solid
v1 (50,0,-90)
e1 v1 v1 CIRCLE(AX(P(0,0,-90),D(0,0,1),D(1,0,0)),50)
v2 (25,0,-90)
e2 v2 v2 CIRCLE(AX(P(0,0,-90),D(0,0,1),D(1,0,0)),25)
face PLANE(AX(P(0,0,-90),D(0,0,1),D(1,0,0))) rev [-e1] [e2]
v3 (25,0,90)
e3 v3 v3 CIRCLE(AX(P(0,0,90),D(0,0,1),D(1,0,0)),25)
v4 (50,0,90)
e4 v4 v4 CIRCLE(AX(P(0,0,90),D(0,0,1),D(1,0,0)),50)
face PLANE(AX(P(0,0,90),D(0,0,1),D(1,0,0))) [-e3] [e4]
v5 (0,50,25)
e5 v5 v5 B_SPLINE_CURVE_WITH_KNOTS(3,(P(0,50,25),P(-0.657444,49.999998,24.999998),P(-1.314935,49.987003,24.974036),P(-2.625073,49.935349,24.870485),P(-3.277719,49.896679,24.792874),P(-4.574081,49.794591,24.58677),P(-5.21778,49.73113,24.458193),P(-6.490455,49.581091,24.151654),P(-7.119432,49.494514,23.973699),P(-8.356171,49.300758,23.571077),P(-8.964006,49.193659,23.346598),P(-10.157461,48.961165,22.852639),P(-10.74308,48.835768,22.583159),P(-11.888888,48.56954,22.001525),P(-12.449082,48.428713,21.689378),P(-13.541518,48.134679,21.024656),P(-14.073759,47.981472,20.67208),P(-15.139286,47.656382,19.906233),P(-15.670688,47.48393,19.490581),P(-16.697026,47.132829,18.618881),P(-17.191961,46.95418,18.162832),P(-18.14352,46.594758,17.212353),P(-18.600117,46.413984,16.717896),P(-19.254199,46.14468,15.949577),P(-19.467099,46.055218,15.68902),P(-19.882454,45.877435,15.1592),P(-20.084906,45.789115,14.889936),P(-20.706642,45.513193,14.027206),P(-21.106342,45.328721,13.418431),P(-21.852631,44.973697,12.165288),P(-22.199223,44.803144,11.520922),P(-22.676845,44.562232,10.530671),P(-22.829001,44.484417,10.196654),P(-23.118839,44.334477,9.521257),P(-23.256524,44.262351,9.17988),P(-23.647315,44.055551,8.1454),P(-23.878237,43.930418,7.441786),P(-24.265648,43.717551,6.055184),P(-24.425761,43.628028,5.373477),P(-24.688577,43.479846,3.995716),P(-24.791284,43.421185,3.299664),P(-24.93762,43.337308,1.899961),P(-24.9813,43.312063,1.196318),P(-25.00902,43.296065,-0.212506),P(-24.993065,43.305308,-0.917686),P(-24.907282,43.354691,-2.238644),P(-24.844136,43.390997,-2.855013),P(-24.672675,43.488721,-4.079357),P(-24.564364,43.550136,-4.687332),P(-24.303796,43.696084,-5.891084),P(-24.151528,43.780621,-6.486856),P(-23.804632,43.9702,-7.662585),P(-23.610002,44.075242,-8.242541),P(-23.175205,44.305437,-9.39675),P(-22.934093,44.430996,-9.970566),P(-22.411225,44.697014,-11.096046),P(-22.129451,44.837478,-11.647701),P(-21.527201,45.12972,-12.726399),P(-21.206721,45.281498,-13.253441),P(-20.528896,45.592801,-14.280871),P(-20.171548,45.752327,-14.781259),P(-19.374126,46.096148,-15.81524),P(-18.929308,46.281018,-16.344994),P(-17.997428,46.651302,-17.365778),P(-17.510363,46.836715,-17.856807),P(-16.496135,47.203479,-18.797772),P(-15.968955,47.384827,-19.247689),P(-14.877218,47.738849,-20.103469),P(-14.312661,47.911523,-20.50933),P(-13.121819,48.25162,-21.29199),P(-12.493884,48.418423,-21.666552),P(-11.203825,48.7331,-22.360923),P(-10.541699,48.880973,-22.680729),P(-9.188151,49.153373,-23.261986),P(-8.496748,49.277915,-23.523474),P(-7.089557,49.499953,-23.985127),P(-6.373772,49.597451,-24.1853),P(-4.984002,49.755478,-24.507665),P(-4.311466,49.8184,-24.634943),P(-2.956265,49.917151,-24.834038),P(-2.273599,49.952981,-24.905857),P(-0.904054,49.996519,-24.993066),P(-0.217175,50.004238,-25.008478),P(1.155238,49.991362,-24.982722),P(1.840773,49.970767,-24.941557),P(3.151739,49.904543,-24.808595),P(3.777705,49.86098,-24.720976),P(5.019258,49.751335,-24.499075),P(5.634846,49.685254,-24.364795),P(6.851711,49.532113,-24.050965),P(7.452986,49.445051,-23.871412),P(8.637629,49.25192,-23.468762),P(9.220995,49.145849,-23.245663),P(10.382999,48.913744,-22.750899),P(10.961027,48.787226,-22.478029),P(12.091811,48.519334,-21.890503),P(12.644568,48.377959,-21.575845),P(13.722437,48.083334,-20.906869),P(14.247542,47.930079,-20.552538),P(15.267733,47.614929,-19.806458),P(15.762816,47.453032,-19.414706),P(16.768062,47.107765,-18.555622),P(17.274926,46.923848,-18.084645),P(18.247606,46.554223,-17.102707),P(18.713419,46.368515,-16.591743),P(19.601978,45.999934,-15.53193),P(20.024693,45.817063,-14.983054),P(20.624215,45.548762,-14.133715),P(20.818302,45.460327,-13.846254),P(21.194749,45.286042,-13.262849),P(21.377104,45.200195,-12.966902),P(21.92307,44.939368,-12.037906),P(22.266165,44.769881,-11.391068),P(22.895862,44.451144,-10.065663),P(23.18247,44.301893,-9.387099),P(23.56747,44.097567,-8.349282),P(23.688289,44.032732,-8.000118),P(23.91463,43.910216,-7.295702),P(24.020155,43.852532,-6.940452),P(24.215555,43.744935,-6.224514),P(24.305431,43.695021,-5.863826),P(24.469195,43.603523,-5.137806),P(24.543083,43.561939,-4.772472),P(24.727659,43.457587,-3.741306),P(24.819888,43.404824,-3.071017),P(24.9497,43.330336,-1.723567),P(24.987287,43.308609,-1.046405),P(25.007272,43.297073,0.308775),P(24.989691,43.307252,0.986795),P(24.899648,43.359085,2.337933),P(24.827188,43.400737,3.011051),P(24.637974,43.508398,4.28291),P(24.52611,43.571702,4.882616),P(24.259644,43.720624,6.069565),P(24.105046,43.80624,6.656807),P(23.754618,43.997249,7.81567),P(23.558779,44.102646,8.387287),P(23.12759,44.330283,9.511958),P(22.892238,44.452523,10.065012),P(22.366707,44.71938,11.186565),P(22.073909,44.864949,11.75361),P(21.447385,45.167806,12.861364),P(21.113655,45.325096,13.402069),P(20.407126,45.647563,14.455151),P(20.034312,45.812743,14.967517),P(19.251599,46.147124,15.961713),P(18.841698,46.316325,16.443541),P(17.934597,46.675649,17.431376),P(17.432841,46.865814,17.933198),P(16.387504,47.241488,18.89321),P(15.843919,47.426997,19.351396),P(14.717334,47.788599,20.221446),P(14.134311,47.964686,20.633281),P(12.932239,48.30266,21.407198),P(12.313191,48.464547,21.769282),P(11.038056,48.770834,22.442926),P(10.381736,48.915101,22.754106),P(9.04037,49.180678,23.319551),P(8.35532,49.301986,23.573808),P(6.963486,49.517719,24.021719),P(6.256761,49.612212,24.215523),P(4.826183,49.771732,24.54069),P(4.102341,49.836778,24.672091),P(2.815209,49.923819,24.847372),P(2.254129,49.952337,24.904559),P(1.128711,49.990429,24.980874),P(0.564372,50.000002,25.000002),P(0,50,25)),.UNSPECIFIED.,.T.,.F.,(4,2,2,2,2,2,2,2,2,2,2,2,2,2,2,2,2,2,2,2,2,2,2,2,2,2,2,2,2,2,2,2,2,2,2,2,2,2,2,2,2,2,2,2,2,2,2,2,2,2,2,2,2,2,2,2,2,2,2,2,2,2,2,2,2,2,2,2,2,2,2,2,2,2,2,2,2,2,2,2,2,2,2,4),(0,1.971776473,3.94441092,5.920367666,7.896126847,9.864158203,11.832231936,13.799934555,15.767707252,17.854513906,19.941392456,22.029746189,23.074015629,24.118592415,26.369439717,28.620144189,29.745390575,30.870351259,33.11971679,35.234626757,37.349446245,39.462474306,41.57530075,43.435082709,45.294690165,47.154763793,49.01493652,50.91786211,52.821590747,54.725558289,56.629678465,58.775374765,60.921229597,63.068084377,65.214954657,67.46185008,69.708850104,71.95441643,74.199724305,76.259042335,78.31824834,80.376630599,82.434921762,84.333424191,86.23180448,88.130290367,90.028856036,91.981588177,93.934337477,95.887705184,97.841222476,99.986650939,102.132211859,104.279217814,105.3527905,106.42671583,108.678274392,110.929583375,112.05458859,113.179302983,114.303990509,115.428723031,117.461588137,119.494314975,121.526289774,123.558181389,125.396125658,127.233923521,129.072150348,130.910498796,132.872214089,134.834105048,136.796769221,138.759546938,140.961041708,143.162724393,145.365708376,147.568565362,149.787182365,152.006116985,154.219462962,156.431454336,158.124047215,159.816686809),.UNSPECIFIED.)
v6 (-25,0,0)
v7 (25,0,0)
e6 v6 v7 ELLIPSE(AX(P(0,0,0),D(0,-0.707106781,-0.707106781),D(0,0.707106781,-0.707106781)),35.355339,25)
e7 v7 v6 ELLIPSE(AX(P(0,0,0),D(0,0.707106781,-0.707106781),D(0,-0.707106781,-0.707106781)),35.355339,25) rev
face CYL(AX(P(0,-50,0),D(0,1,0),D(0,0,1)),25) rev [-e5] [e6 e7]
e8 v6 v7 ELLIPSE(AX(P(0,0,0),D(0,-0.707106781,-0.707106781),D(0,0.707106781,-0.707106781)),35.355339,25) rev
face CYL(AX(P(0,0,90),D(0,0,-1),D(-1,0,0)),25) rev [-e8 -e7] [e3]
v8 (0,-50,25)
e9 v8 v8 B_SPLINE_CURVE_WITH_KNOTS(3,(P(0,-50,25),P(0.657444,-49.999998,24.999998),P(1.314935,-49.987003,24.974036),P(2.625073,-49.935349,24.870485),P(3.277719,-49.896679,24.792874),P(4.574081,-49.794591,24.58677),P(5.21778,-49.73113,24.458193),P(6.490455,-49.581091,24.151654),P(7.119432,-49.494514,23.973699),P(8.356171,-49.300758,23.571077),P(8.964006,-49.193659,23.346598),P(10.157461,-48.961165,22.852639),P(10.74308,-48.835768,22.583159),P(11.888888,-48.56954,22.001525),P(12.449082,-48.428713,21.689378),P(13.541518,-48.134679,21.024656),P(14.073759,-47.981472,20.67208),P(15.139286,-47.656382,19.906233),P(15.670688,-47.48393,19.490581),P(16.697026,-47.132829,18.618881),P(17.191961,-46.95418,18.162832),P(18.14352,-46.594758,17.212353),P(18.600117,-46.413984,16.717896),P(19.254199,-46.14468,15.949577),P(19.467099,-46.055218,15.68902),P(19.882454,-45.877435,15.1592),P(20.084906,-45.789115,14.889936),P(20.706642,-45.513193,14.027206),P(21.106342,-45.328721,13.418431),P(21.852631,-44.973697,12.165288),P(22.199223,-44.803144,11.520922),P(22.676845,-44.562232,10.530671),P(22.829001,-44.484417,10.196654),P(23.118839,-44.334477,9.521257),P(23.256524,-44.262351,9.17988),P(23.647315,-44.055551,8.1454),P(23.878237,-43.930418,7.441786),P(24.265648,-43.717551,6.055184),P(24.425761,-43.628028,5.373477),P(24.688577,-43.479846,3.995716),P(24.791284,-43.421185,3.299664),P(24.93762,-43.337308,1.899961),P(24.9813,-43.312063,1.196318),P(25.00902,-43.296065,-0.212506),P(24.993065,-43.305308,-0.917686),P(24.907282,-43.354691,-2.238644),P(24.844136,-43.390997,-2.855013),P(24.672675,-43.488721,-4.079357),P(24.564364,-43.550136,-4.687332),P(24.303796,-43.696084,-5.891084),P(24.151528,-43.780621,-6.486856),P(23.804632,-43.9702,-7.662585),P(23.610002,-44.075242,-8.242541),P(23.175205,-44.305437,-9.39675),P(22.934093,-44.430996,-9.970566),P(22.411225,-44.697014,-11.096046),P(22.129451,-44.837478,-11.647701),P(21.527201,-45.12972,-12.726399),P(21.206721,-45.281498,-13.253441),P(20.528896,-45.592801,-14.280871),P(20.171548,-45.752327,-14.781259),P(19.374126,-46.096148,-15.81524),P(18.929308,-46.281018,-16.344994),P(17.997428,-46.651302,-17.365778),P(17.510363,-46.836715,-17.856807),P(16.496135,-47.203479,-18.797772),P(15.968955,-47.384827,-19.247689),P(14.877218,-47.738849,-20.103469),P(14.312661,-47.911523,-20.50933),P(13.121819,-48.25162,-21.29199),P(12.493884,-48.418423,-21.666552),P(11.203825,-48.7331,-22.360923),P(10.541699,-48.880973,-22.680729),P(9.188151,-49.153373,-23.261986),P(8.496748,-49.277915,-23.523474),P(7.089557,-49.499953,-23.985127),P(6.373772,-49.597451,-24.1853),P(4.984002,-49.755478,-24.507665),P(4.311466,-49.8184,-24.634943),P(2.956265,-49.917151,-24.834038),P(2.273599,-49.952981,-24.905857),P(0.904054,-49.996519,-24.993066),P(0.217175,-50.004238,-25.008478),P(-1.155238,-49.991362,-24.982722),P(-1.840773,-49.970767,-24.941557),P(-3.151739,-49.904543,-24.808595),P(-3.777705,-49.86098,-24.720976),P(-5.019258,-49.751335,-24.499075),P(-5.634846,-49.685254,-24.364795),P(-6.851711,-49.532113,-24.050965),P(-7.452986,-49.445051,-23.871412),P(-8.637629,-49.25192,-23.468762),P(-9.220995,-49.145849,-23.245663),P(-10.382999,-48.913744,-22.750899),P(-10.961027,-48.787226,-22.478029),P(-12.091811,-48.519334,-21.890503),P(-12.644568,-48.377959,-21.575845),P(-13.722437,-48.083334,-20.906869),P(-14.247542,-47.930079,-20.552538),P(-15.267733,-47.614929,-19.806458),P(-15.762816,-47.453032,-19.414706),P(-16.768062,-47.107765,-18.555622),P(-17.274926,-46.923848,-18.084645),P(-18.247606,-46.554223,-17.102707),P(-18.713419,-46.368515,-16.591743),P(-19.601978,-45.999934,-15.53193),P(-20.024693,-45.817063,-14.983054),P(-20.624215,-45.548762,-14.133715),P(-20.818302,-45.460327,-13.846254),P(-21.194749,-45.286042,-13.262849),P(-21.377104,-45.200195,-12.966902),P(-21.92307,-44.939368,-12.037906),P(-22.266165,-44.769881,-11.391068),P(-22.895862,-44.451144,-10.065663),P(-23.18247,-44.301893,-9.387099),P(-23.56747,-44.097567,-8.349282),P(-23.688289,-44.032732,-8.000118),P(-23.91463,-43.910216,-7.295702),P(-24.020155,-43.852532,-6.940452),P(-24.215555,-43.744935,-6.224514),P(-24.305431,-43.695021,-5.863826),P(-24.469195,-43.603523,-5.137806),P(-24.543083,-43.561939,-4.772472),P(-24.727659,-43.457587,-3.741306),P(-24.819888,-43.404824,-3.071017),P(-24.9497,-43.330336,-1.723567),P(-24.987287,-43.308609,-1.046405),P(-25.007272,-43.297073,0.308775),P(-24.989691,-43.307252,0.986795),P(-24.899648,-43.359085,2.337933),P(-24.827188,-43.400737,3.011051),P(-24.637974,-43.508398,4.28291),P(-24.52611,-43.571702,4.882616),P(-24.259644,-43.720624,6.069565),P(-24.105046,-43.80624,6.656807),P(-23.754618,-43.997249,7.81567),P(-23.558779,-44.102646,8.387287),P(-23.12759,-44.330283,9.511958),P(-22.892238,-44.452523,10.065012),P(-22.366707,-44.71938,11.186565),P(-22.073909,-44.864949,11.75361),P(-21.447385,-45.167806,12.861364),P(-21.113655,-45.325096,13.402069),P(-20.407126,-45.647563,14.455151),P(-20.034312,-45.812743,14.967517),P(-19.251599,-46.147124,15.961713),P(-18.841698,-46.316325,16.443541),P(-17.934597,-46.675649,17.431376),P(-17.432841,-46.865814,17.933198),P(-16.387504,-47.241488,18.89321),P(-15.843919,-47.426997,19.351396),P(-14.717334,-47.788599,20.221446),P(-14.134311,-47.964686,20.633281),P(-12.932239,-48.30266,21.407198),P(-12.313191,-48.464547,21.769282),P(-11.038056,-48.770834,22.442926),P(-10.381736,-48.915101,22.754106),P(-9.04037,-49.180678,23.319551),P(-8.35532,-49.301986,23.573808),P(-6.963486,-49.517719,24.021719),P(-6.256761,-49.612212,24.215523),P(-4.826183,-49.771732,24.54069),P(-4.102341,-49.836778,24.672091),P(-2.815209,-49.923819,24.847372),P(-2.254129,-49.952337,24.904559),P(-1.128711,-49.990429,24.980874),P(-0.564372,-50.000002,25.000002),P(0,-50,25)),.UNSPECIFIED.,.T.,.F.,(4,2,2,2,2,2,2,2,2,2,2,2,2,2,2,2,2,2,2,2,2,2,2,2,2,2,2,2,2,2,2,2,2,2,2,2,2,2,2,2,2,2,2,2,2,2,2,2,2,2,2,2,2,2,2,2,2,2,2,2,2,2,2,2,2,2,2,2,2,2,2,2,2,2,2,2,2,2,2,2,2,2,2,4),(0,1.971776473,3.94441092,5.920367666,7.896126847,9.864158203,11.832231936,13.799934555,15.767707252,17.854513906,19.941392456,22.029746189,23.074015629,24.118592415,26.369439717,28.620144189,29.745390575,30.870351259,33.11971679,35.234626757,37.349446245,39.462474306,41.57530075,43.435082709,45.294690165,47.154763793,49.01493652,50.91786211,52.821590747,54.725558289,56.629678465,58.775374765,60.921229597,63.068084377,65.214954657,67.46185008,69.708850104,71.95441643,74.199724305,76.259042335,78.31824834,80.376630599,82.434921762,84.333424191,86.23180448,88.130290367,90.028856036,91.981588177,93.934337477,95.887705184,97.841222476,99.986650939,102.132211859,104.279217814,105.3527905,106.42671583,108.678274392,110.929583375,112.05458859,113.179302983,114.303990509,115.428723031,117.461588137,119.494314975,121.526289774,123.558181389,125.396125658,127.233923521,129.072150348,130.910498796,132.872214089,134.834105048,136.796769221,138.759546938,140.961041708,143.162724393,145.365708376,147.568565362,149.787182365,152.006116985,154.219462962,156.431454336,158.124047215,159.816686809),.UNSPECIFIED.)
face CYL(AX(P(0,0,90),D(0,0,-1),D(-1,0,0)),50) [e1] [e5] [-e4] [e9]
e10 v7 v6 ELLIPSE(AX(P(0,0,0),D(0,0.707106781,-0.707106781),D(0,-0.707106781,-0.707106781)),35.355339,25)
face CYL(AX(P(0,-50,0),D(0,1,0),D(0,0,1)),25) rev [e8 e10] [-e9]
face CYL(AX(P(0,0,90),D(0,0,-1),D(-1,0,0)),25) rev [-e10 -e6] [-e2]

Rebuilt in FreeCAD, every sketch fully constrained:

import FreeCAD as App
import Part
import Sketcher
Q = App.Units.Quantity

doc = App.newDocument("Part")
params = doc.addObject("Spreadsheet::Sheet", "Params")
for row, (alias, value) in enumerate([
    ("sketch1_diameter", "100 mm"),
    ("sketch1_diameter2", "50 mm"),
    ("pad1_length", "180 mm"),
    ("sketch2_diameter", "50 mm"),
], start=1):
    params.set(f"A{row}", alias)
    params.set(f"B{row}", "=" + value)
    params.setAlias(f"B{row}", alias)

body = doc.addObject("PartDesign::Body", "Body")

# Sketch on XY plane
sketch1 = body.newObject("Sketcher::SketchObject", "Sketch")
sketch1.AttachmentSupport = (doc.getObject("XY_Plane"), [""])
sketch1.MapMode = "FlatFace"
sketch1.addGeometry([
    Part.Circle(App.Vector(0, 0, 0), App.Vector(0, 0, 1), 50),
    Part.Circle(App.Vector(0, 0, 0), App.Vector(0, 0, 1), 25),
], False)
sketch1.addConstraint([
    Sketcher.Constraint("Coincident", 0, 3, -1, 1),
    Sketcher.Constraint("Coincident", 1, 3, -1, 1),
    Sketcher.Constraint("Diameter", 0, Q("100 mm")),
    Sketcher.Constraint("Diameter", 1, Q("50 mm")),
])
sketch1.setExpression("Constraints[2]", "Params.sketch1_diameter")
sketch1.setExpression("Constraints[3]", "Params.sketch1_diameter2")
pad1 = body.newObject("PartDesign::Pad", "Pad")
pad1.Profile = sketch1
pad1.setExpression("Length", "Params.pad1_length")
pad1.Midplane = True

# Sketch on XZ plane
sketch2 = body.newObject("Sketcher::SketchObject", "Sketch001")
sketch2.AttachmentSupport = (doc.getObject("XZ_Plane"), [""])
sketch2.MapMode = "FlatFace"
sketch2.addGeometry(Part.Circle(App.Vector(0, 0, 0), App.Vector(0, 0, 1), 25), False)
sketch2.addConstraint([
    Sketcher.Constraint("Coincident", 0, 3, -1, 1),
    Sketcher.Constraint("Diameter", 0, Q("50 mm")),
])
sketch2.setExpression("Constraints[1]", "Params.sketch2_diameter")
pocket1 = body.newObject("PartDesign::Pocket", "Pocket")
pocket1.Profile = sketch2
pocket1.Type = "ThroughAll"
pocket1.Midplane = True

doc.recompute()
